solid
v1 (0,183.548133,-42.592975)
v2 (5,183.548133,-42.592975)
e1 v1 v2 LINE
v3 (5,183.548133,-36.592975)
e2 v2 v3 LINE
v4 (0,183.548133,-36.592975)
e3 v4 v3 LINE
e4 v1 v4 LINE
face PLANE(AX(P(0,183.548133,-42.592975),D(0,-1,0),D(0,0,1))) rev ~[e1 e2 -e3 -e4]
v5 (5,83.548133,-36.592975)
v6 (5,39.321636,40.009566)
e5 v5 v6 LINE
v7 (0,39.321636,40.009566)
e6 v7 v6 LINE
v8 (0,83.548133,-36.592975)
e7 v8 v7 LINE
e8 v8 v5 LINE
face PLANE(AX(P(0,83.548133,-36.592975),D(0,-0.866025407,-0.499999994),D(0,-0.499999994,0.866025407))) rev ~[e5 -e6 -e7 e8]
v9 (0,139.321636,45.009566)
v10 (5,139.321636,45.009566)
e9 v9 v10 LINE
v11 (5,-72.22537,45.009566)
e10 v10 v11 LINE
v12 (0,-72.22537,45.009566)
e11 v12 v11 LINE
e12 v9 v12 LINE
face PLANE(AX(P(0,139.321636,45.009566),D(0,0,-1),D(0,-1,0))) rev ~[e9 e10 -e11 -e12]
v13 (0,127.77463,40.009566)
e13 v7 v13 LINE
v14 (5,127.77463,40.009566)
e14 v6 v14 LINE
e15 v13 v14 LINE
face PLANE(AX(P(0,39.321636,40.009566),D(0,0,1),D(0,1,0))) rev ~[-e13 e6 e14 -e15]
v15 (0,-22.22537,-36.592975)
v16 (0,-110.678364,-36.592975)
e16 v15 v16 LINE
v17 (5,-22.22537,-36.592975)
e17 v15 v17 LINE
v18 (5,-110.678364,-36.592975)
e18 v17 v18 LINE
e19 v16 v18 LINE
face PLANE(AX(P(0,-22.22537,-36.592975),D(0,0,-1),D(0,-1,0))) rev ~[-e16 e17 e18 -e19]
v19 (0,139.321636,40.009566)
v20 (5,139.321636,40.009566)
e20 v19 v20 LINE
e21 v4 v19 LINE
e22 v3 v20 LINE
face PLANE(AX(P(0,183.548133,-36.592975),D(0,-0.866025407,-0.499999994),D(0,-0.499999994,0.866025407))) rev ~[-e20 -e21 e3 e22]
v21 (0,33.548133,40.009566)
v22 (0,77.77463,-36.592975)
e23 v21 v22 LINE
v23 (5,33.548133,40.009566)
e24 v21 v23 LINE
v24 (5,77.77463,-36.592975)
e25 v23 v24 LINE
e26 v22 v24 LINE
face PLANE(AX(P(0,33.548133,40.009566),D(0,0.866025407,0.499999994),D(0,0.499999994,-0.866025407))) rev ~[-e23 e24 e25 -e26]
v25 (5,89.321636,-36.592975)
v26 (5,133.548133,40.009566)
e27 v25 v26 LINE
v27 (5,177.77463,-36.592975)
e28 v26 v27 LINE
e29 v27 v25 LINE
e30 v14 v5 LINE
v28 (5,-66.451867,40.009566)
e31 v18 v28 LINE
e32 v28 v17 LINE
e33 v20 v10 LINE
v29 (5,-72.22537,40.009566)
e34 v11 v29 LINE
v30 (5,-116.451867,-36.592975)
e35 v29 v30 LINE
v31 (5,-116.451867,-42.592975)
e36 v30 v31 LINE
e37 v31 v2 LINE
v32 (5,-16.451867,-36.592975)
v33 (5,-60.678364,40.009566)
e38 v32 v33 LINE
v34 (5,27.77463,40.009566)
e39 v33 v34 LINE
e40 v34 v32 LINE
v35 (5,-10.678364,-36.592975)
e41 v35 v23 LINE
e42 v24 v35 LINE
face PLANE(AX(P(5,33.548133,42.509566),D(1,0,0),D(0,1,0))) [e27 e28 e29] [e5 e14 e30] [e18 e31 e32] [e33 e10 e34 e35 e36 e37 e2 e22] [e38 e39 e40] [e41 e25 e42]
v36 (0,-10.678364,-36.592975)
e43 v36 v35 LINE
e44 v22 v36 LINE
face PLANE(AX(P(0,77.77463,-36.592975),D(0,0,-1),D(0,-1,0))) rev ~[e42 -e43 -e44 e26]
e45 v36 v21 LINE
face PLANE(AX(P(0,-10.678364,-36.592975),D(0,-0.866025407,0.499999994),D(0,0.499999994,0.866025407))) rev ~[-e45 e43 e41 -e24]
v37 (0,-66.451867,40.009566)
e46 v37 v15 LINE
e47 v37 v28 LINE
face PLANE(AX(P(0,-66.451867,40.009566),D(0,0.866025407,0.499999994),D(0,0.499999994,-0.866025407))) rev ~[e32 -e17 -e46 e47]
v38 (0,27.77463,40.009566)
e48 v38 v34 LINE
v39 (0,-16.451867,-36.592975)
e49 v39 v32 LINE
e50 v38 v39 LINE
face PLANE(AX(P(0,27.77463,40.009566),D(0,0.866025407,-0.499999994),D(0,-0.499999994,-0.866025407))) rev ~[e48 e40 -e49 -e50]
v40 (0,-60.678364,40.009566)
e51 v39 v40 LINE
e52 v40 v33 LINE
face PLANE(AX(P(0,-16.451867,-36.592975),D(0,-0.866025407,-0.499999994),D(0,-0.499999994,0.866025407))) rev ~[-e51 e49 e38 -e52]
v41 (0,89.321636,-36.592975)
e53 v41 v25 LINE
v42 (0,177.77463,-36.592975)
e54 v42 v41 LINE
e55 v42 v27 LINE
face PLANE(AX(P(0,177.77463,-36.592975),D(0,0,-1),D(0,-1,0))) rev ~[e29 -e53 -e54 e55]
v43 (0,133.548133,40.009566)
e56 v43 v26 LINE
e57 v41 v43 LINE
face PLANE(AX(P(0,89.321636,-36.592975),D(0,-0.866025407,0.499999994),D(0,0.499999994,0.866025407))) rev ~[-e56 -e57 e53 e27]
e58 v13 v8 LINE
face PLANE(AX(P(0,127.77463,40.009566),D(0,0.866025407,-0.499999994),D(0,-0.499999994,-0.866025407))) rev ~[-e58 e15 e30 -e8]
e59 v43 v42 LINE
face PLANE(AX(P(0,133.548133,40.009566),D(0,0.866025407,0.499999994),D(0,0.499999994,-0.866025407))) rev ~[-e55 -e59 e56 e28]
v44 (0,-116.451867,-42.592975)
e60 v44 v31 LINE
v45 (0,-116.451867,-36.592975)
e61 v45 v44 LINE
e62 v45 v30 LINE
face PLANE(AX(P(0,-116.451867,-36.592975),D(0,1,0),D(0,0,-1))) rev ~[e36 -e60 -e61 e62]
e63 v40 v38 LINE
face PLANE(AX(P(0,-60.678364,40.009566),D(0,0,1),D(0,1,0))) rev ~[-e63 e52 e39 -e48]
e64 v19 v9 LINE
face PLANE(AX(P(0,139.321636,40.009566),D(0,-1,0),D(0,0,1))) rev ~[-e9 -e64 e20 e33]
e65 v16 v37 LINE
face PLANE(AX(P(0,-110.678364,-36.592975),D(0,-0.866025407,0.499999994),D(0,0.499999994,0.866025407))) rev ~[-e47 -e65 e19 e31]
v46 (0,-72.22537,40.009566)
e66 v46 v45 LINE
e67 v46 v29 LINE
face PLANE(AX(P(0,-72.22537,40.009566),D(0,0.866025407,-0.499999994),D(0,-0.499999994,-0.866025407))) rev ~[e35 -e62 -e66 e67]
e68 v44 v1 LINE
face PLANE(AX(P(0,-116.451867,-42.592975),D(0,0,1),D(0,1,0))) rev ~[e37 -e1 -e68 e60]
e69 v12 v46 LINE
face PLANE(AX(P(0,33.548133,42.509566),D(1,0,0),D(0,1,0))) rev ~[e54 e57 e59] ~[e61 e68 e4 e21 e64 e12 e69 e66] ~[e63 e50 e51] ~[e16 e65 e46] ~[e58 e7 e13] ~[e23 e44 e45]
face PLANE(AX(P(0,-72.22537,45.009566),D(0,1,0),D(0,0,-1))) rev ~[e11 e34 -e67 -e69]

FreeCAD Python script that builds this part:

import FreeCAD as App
import Part
import Sketcher
from FreeCAD import Vector
Q = App.Units.Quantity

doc = App.newDocument("Part")
params = doc.addObject("Spreadsheet::Sheet", "Params")
for row, (alias, value) in enumerate([
    ("sketch1_width", "300 mm"),
    ("sketch1_height", "5 mm"),
    ("sketch1_height2", "6 mm"),
    ("pad1_length", "5 mm"),
], start=1):
    params.set(f"A{row}", alias)
    params.set(f"B{row}", "=" + value)
    params.setAlias(f"B{row}", alias)

body = doc.addObject("PartDesign::Body", "Body")

# Sketch on YZ plane
sketch1 = body.newObject("Sketcher::SketchObject", "Sketch")
sketch1.AttachmentSupport = (doc.getObject("YZ_Plane"), [""])
sketch1.MapMode = "FlatFace"
sketch1.addGeometry([
    Part.LineSegment(Vector(139, 40, 0), Vector(139, 45, 0)),  # 0
    Part.LineSegment(Vector(139, 45, 0), Vector(-72, 45, 0)),  # 1
    Part.LineSegment(Vector(-72, 45, 0), Vector(-72, 40, 0)),  # 2
    Part.LineSegment(Vector(-72, 40, 0), Vector(-116, -37, 0)),  # 3
    Part.LineSegment(Vector(-116, -37, 0), Vector(-116, -43, 0)),  # 4
    Part.LineSegment(Vector(-116, -43, 0), Vector(184, -43, 0)),  # 5
    Part.LineSegment(Vector(184, -43, 0), Vector(184, -37, 0)),  # 6
    Part.LineSegment(Vector(184, -37, 0), Vector(139, 40, 0)),  # 7
    Part.LineSegment(Vector(178, -37, 0), Vector(89, -37, 0)),  # 8
    Part.LineSegment(Vector(89, -37, 0), Vector(134, 40, 0)),  # 9
    Part.LineSegment(Vector(134, 40, 0), Vector(178, -37, 0)),  # 10
    Part.LineSegment(Vector(84, -37, 0), Vector(39, 40, 0)),  # 11
    Part.LineSegment(Vector(39, 40, 0), Vector(128, 40, 0)),  # 12
    Part.LineSegment(Vector(128, 40, 0), Vector(84, -37, 0)),  # 13
    Part.LineSegment(Vector(78, -37, 0), Vector(-11, -37, 0)),  # 14
    Part.LineSegment(Vector(-11, -37, 0), Vector(34, 40, 0)),  # 15
    Part.LineSegment(Vector(34, 40, 0), Vector(78, -37, 0)),  # 16
    Part.LineSegment(Vector(-16, -37, 0), Vector(-61, 40, 0)),  # 17
    Part.LineSegment(Vector(-61, 40, 0), Vector(28, 40, 0)),  # 18
    Part.LineSegment(Vector(28, 40, 0), Vector(-16, -37, 0)),  # 19
    Part.LineSegment(Vector(-111, -37, 0), Vector(-66, 40, 0)),  # 20
    Part.LineSegment(Vector(-66, 40, 0), Vector(-22, -37, 0)),  # 21
    Part.LineSegment(Vector(-22, -37, 0), Vector(-111, -37, 0)),  # 22
], False)
sketch1.addConstraint([
    Sketcher.Constraint("Coincident", 0, 2, 1, 1),
    Sketcher.Constraint("Coincident", 1, 2, 2, 1),
    Sketcher.Constraint("Coincident", 2, 2, 3, 1),
    Sketcher.Constraint("Coincident", 3, 2, 4, 1),
    Sketcher.Constraint("Coincident", 4, 2, 5, 1),
    Sketcher.Constraint("Coincident", 5, 2, 6, 1),
    Sketcher.Constraint("Coincident", 6, 2, 7, 1),
    Sketcher.Constraint("Coincident", 7, 2, 0, 1),
    Sketcher.Constraint("Coincident", 8, 2, 9, 1),
    Sketcher.Constraint("Coincident", 9, 2, 10, 1),
    Sketcher.Constraint("Coincident", 10, 2, 8, 1),
    Sketcher.Constraint("Coincident", 11, 2, 12, 1),
    Sketcher.Constraint("Coincident", 12, 2, 13, 1),
    Sketcher.Constraint("Coincident", 13, 2, 11, 1),
    Sketcher.Constraint("Coincident", 14, 2, 15, 1),
    Sketcher.Constraint("Coincident", 15, 2, 16, 1),
    Sketcher.Constraint("Coincident", 16, 2, 14, 1),
    Sketcher.Constraint("Coincident", 17, 2, 18, 1),
    Sketcher.Constraint("Coincident", 18, 2, 19, 1),
    Sketcher.Constraint("Coincident", 19, 2, 17, 1),
    Sketcher.Constraint("Coincident", 20, 2, 21, 1),
    Sketcher.Constraint("Coincident", 21, 2, 22, 1),
    Sketcher.Constraint("Coincident", 22, 2, 20, 1),
    Sketcher.Constraint("Vertical", 0),
    Sketcher.Constraint("Horizontal", 1),
    Sketcher.Constraint("Vertical", 2),
    Sketcher.Constraint("Vertical", 4),
    Sketcher.Constraint("Horizontal", 5),
    Sketcher.Constraint("Vertical", 6),
    Sketcher.Constraint("Horizontal", 8),
    Sketcher.Constraint("Horizontal", 12),
    Sketcher.Constraint("Horizontal", 14),
    Sketcher.Constraint("Horizontal", 18),
    Sketcher.Constraint("Horizontal", 22),
    Sketcher.Constraint("Parallel", 3, 9),
    Sketcher.Constraint("Parallel", 7, 10),
    Sketcher.Constraint("Parallel", 10, 11),
    Sketcher.Constraint("Parallel", 9, 13),
    Sketcher.Constraint("Parallel", 13, 15),
    Sketcher.Constraint("Parallel", 11, 16),
    Sketcher.Constraint("Parallel", 16, 17),
    Sketcher.Constraint("Parallel", 15, 19),
    Sketcher.Constraint("Parallel", 19, 20),
    Sketcher.Constraint("Parallel", 17, 21),
    Sketcher.Constraint("Horizontal", 3, 2, 6, 2),
    Sketcher.Constraint("Horizontal", 2, 2, 7, 2),
    Sketcher.Constraint("Horizontal", 6, 2, 8, 2),
    Sketcher.Constraint("Horizontal", 7, 2, 9, 2),
    Sketcher.Constraint("Horizontal", 9, 2, 11, 2),
    Sketcher.Constraint("Horizontal", 10, 2, 13, 2),
    Sketcher.Constraint("Horizontal", 13, 2, 14, 2),
    Sketcher.Constraint("Horizontal", 12, 2, 15, 2),
    Sketcher.Constraint("Horizontal", 15, 2, 17, 2),
    Sketcher.Constraint("Horizontal", 16, 2, 19, 2),
    Sketcher.Constraint("Horizontal", 18, 2, 20, 2),
    Sketcher.Constraint("Horizontal", 19, 2, 21, 2),
    Sketcher.Constraint("Equal", 3, 7),
    Sketcher.Constraint("DistanceX", 5, 1, 5, 2, 300.0),
    Sketcher.Constraint("DistanceY", 0, 1, 0, 2, 5.0),
    Sketcher.Constraint("DistanceY", 4, 2, 4, 1, 6.0),
    Sketcher.Constraint("Angle", 3, Q("-120 deg")),
    Sketcher.Constraint("DistanceX", 8, 2, 7, 2, 50.0),
    Sketcher.Constraint("DistanceX", 11, 2, 8, 2, 50.0),
    Sketcher.Constraint("DistanceX", 14, 2, 11, 2, 50.0),
    Sketcher.Constraint("DistanceX", 17, 2, 14, 2, 50.0),
    Sketcher.Constraint("DistanceX", 20, 2, 19, 2, 50.0),
    Sketcher.Constraint("DistanceX", 1, 2, 1, 1, 211.547006),
    Sketcher.Constraint("DistanceX", 1, 2, -1, 1, 72.22537),
    Sketcher.Constraint("DistanceY", -1, 1, 0, 2, 45.009566),
])
sketch1.setExpression("Constraints[57]", "Params.sketch1_width")
sketch1.setExpression("Constraints[58]", "Params.sketch1_height")
sketch1.setExpression("Constraints[59]", "Params.sketch1_height2")
pad1 = body.newObject("PartDesign::Pad", "Pad")
pad1.Profile = sketch1
pad1.setExpression("Length", "Params.pad1_length")

doc.recompute()
